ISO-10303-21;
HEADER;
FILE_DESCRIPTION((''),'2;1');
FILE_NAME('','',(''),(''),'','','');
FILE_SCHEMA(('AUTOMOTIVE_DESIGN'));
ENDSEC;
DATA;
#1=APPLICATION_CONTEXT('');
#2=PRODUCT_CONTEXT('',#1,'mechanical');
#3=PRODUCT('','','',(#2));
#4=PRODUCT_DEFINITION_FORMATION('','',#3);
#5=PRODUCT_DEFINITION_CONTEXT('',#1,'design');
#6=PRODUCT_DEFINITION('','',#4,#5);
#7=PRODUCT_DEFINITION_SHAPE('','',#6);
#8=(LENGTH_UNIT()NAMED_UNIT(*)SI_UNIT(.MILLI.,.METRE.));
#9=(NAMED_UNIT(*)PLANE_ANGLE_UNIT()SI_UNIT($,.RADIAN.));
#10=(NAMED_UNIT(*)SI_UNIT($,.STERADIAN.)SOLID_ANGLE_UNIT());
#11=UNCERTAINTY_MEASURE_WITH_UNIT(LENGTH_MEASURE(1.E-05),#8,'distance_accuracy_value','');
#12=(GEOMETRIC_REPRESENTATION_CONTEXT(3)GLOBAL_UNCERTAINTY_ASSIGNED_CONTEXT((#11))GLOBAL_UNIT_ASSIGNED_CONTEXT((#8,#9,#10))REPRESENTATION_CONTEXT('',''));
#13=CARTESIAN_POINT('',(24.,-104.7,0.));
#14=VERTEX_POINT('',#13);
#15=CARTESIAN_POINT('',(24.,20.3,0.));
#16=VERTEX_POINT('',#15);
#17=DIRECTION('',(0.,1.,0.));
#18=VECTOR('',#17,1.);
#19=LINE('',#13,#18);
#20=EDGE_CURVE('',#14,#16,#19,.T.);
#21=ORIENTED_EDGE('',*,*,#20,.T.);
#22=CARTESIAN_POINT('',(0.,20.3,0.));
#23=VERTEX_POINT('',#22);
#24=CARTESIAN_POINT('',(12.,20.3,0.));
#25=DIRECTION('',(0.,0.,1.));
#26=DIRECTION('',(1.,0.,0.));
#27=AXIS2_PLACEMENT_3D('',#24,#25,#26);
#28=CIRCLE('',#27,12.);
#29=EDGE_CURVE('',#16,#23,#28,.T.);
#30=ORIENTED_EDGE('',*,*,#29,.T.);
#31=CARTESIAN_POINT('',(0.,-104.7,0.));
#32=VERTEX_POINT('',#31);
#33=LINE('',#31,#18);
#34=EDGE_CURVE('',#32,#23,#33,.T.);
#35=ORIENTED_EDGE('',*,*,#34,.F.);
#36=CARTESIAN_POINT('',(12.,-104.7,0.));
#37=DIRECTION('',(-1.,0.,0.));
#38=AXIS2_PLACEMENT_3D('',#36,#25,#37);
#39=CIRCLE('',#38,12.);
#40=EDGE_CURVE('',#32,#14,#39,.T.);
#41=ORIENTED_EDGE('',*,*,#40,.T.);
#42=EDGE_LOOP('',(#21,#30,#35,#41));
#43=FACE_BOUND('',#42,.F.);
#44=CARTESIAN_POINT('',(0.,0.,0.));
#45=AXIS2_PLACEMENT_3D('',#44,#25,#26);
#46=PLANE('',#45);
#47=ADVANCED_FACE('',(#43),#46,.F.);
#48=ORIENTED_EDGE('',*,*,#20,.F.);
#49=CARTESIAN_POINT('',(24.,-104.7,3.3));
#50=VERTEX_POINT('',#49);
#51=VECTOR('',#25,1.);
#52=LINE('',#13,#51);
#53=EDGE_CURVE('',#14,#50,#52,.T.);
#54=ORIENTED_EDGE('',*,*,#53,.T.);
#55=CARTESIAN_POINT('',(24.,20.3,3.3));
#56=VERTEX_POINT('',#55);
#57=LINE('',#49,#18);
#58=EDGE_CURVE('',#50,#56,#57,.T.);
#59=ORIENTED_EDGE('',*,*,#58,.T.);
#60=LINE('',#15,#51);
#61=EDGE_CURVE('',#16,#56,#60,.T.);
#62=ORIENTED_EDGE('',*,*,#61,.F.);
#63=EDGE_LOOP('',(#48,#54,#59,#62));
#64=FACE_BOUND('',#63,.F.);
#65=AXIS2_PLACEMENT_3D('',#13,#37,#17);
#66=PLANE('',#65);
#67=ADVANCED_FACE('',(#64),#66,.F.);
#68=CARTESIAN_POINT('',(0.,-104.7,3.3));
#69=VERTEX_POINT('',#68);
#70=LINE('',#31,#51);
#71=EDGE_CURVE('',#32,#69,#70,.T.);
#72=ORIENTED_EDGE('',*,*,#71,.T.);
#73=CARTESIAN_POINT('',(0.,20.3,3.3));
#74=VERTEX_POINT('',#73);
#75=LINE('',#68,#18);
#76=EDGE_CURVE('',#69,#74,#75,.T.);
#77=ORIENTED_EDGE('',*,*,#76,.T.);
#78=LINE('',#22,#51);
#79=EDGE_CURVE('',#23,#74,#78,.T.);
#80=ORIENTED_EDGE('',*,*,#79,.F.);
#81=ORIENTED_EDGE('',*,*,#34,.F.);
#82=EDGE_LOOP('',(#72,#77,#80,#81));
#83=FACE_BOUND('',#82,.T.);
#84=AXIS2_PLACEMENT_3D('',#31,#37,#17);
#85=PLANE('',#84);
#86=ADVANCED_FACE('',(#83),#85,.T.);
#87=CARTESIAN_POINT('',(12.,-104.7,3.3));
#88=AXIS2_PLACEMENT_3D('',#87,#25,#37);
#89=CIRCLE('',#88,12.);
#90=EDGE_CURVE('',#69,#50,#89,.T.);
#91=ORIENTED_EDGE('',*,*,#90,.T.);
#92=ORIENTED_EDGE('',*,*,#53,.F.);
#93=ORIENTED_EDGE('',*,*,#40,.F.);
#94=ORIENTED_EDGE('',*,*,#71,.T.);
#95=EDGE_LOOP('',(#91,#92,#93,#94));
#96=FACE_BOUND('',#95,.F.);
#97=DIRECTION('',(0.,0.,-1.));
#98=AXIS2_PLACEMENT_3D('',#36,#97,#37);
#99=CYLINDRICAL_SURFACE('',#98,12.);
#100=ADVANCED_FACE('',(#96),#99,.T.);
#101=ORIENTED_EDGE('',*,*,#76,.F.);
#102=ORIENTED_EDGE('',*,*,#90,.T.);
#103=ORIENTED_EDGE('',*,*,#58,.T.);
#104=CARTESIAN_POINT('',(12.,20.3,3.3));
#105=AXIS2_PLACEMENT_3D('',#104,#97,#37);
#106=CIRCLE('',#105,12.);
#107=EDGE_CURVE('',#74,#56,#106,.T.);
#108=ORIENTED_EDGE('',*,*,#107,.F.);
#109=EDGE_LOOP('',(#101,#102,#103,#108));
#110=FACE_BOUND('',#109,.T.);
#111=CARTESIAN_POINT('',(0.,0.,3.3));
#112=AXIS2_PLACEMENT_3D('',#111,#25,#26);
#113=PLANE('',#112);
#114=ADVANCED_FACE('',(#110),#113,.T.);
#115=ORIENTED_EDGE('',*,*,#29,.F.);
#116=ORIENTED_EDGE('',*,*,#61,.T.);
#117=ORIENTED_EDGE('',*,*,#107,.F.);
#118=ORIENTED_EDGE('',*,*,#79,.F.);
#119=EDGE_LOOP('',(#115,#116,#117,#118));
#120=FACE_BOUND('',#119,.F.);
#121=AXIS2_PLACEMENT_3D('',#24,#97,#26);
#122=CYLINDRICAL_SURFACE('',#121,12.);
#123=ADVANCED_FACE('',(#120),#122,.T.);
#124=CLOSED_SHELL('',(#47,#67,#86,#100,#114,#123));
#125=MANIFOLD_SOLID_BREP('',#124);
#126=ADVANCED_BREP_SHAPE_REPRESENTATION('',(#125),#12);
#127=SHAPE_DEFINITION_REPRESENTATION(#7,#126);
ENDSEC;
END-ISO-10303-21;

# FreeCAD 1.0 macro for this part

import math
import FreeCAD as App
import Part
import Sketcher
from FreeCAD import Vector
Q = App.Units.Quantity

doc = App.newDocument("Part")
body = doc.addObject("PartDesign::Body", "Body")

sketch1 = body.newObject("Sketcher::SketchObject", "Sketch")
sketch1.AttachmentSupport = (doc.getObject("XY_Plane"), [""])
sketch1.MapMode = "FlatFace"
sketch1.addGeometry(Part.ArcOfCircle(Part.Circle(Vector(12, 20, 0), Vector(0, 0, 1), 12), math.radians(0), math.radians(180)), False)
sketch1.addGeometry(Part.LineSegment(Vector(0, 20, 0), Vector(0, -105, 0)), False)
sketch1.addGeometry(Part.ArcOfCircle(Part.Circle(Vector(12, -105, 0), Vector(0, 0, 1), 12), math.radians(180), math.radians(360)), False)
sketch1.addGeometry(Part.LineSegment(Vector(24, -105, 0), Vector(24, 20, 0)), False)
sketch1.addConstraint(Sketcher.Constraint("Tangent", 0, 2, 1, 1))
sketch1.addConstraint(Sketcher.Constraint("Tangent", 1, 2, 2, 1))
sketch1.addConstraint(Sketcher.Constraint("Tangent", 2, 2, 3, 1))
sketch1.addConstraint(Sketcher.Constraint("Tangent", 3, 2, 0, 1))
sketch1.addConstraint(Sketcher.Constraint("Vertical", 1))
sketch1.addConstraint(Sketcher.Constraint("Vertical", 3))
sketch1.addConstraint(Sketcher.Constraint("PointOnObject", 0, 2, -2))
sketch1.addConstraint(Sketcher.Constraint("Radius", 0, Q("12 mm")))
sketch1.addConstraint(Sketcher.Constraint("DistanceY", 1, 2, 1, 1, Q("125 mm")))
sketch1.addConstraint(Sketcher.Constraint("DistanceY", -1, 1, 0, 3, Q("20.3 mm")))
pad1 = body.newObject("PartDesign::Pad", "Pad")
pad1.Profile = sketch1
pad1.Length = 3.3

doc.recompute()
